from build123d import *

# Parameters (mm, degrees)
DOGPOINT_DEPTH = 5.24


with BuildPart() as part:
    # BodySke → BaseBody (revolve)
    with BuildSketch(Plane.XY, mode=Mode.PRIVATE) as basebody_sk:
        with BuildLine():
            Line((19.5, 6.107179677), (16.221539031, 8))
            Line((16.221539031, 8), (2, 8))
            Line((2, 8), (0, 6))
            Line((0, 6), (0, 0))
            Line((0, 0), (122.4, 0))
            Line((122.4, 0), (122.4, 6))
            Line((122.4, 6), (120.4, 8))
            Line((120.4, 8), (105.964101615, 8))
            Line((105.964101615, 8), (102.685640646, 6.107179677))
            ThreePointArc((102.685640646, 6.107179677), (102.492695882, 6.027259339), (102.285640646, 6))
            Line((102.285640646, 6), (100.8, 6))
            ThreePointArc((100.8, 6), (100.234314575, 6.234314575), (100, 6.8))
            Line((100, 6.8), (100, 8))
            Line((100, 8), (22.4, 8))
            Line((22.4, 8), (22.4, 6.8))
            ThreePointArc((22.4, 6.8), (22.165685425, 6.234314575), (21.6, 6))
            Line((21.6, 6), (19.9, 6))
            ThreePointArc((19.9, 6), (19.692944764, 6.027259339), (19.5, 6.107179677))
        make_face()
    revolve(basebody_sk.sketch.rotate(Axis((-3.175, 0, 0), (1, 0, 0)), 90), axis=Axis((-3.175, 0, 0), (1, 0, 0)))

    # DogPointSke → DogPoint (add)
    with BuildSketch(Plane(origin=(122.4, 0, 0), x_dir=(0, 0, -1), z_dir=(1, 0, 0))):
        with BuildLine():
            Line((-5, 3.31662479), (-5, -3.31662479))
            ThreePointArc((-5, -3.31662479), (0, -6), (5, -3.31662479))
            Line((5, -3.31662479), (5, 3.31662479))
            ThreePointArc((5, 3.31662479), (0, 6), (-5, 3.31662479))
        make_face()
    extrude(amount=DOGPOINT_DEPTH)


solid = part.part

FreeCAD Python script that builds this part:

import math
import FreeCAD as App
import Part
import Sketcher
Q = App.Units.Quantity

doc = App.newDocument("Part")
body = doc.addObject("PartDesign::Body", "Body")

sketch1 = body.newObject("Sketcher::SketchObject", "Sketch")
sketch1.AttachmentSupport = (doc.getObject("XY_Plane"), [""])
sketch1.MapMode = "FlatFace"
sketch1.addGeometry(Part.LineSegment(App.Vector(19.5, 6.11, 0), App.Vector(16.22, 8, 0)), False)
sketch1.addGeometry(Part.LineSegment(App.Vector(16.22, 8, 0), App.Vector(2, 8, 0)), False)
sketch1.addGeometry(Part.LineSegment(App.Vector(2, 8, 0), App.Vector(0, 6, 0)), False)
sketch1.addGeometry(Part.LineSegment(App.Vector(0, 6, 0), App.Vector(0, 0, 0)), False)
sketch1.addGeometry(Part.LineSegment(App.Vector(0, 0, 0), App.Vector(122.4, 0, 0)), False)
sketch1.addGeometry(Part.LineSegment(App.Vector(122.4, 0, 0), App.Vector(122.4, 6, 0)), False)
sketch1.addGeometry(Part.LineSegment(App.Vector(122.4, 6, 0), App.Vector(120.4, 8, 0)), False)
sketch1.addGeometry(Part.LineSegment(App.Vector(120.4, 8, 0), App.Vector(105.96, 8, 0)), False)
sketch1.addGeometry(Part.LineSegment(App.Vector(105.96, 8, 0), App.Vector(102.69, 6.11, 0)), False)
sketch1.addGeometry(Part.ArcOfCircle(Part.Circle(App.Vector(102.29, 6.8, 0), App.Vector(0, 0, 1), 0.8), math.radians(-90), math.radians(-60)), False)
sketch1.addGeometry(Part.LineSegment(App.Vector(102.29, 6, 0), App.Vector(100.8, 6, 0)), False)
sketch1.addGeometry(Part.ArcOfCircle(Part.Circle(App.Vector(100.8, 6.8, 0), App.Vector(0, 0, 1), 0.8), math.radians(180), math.radians(270)), False)
sketch1.addGeometry(Part.LineSegment(App.Vector(100, 6.8, 0), App.Vector(100, 8, 0)), False)
sketch1.addGeometry(Part.LineSegment(App.Vector(100, 8, 0), App.Vector(22.4, 8, 0)), False)
sketch1.addGeometry(Part.LineSegment(App.Vector(22.4, 8, 0), App.Vector(22.4, 6.8, 0)), False)
sketch1.addGeometry(Part.ArcOfCircle(Part.Circle(App.Vector(21.6, 6.8, 0), App.Vector(0, 0, 1), 0.8), math.radians(-90), math.radians(0)), False)
sketch1.addGeometry(Part.LineSegment(App.Vector(21.6, 6, 0), App.Vector(19.9, 6, 0)), False)
sketch1.addGeometry(Part.ArcOfCircle(Part.Circle(App.Vector(19.9, 6.8, 0), App.Vector(0, 0, 1), 0.8), math.radians(-120), math.radians(-90)), False)
sketch1.addConstraint(Sketcher.Constraint("Coincident", 0, 2, 1, 1))
sketch1.addConstraint(Sketcher.Constraint("Coincident", 1, 2, 2, 1))
sketch1.addConstraint(Sketcher.Constraint("Coincident", 2, 2, 3, 1))
sketch1.addConstraint(Sketcher.Constraint("Coincident", 3, 2, 4, 1))
sketch1.addConstraint(Sketcher.Constraint("Coincident", 4, 2, 5, 1))
sketch1.addConstraint(Sketcher.Constraint("Coincident", 5, 2, 6, 1))
sketch1.addConstraint(Sketcher.Constraint("Coincident", 6, 2, 7, 1))
sketch1.addConstraint(Sketcher.Constraint("Coincident", 7, 2, 8, 1))
sketch1.addConstraint(Sketcher.Constraint("Tangent", 8, 2, 9, 2))
sketch1.addConstraint(Sketcher.Constraint("Tangent", 9, 1, 10, 1))
sketch1.addConstraint(Sketcher.Constraint("Tangent", 10, 2, 11, 2))
sketch1.addConstraint(Sketcher.Constraint("Tangent", 11, 1, 12, 1))
sketch1.addConstraint(Sketcher.Constraint("Coincident", 12, 2, 13, 1))
sketch1.addConstraint(Sketcher.Constraint("Coincident", 13, 2, 14, 1))
sketch1.addConstraint(Sketcher.Constraint("Tangent", 14, 2, 15, 2))
sketch1.addConstraint(Sketcher.Constraint("Tangent", 15, 1, 16, 1))
sketch1.addConstraint(Sketcher.Constraint("Tangent", 16, 2, 17, 2))
sketch1.addConstraint(Sketcher.Constraint("Tangent", 17, 1, 0, 1))
sketch1.addConstraint(Sketcher.Constraint("Horizontal", 1))
sketch1.addConstraint(Sketcher.Constraint("Vertical", 3))
sketch1.addConstraint(Sketcher.Constraint("Horizontal", 4))
sketch1.addConstraint(Sketcher.Constraint("Vertical", 5))
sketch1.addConstraint(Sketcher.Constraint("Horizontal", 7))
sketch1.addConstraint(Sketcher.Constraint("Horizontal", 10))
sketch1.addConstraint(Sketcher.Constraint("Vertical", 12))
sketch1.addConstraint(Sketcher.Constraint("Horizontal", 13))
sketch1.addConstraint(Sketcher.Constraint("Vertical", 14))
sketch1.addConstraint(Sketcher.Constraint("Horizontal", 16))
sketch1.addConstraint(Sketcher.Constraint("Coincident", 3, 2, -1, 1))
sketch1.addConstraint(Sketcher.Constraint("Equal", 9, 11))
sketch1.addConstraint(Sketcher.Constraint("Equal", 11, 15))
sketch1.addConstraint(Sketcher.Constraint("Equal", 15, 17))
sketch1.addConstraint(Sketcher.Constraint("Perpendicular", 2, 6))
sketch1.addConstraint(Sketcher.Constraint("Horizontal", 11, 3, 15, 3))
sketch1.addConstraint(Sketcher.Constraint("Horizontal", 2, 2, 5, 2))
sketch1.addConstraint(Sketcher.Constraint("Horizontal", 1, 2, 6, 2))
sketch1.addConstraint(Sketcher.Constraint("Horizontal", 5, 2, 9, 1))
sketch1.addConstraint(Sketcher.Constraint("Horizontal", 7, 2, 12, 2))
sketch1.addConstraint(Sketcher.Constraint("Horizontal", 8, 2, 17, 1))
sketch1.addConstraint(Sketcher.Constraint("Equal", 2, 6))
sketch1.addConstraint(Sketcher.Constraint("Radius", 9, 0.8))
sketch1.addConstraint(Sketcher.Constraint("DistanceY", 3, 2, 3, 1, 6.0))
sketch1.addConstraint(Sketcher.Constraint("Angle", 0, Q("150 deg")))
sketch1.addConstraint(Sketcher.Constraint("DistanceX", 4, 1, 4, 2, 122.4))
sketch1.addConstraint(Sketcher.Constraint("DistanceX", 13, 2, 13, 1, 77.6))
sketch1.addConstraint(Sketcher.Constraint("DistanceX", 16, 2, 16, 1, 1.7))
sketch1.addConstraint(Sketcher.Constraint("DistanceY", 12, 1, 12, 2, 1.2))
sketch1.addConstraint(Sketcher.Constraint("DistanceX", -1, 1, 11, 1, 100.0))
sketch1.addConstraint(Sketcher.Constraint("DistanceX", 7, 2, 7, 1, 14.435898))
revolution = body.newObject("PartDesign::Revolution", "Revolution")
revolution.Profile = sketch1
revolution.ReferenceAxis = (sketch1, ["H_Axis"])
revolution.Angle = 360

sketch2 = body.newObject("Sketcher::SketchObject", "Sketch001")
sketch2.AttachmentSupport = (doc.getObject("YZ_Plane"), [""])
sketch2.MapMode = "FlatFace"
sketch2.AttachmentOffset = App.Placement(App.Vector(0, 0, 122.4), App.Rotation())
sketch2.addGeometry(Part.LineSegment(App.Vector(3, 5, 0), App.Vector(-3, 5, 0)), False)
sketch2.addGeometry(Part.ArcOfCircle(Part.Circle(App.Vector(0, 0, 0), App.Vector(0, 0, 1), 6), math.radians(124), math.radians(236)), False)
sketch2.addGeometry(Part.LineSegment(App.Vector(-3, -5, 0), App.Vector(3, -5, 0)), False)
sketch2.addGeometry(Part.ArcOfCircle(Part.Circle(App.Vector(0, 0, 0), App.Vector(0, 0, 1), 6), math.radians(-56), math.radians(56)), False)
sketch2.addConstraint(Sketcher.Constraint("Coincident", 0, 2, 1, 1))
sketch2.addConstraint(Sketcher.Constraint("Coincident", 1, 2, 2, 1))
sketch2.addConstraint(Sketcher.Constraint("Coincident", 2, 2, 3, 1))
sketch2.addConstraint(Sketcher.Constraint("Coincident", 3, 2, 0, 1))
sketch2.addConstraint(Sketcher.Constraint("Horizontal", 0))
sketch2.addConstraint(Sketcher.Constraint("Horizontal", 2))
sketch2.addConstraint(Sketcher.Constraint("Coincident", 1, 3, -1, 1))
sketch2.addConstraint(Sketcher.Constraint("Coincident", 3, 3, -1, 1))
sketch2.addConstraint(Sketcher.Constraint("Equal", 1, 3))
sketch2.addConstraint(Sketcher.Constraint("Vertical", 0, 2, 1, 2))
sketch2.addConstraint(Sketcher.Constraint("Radius", 1, 6.0))
sketch2.addConstraint(Sketcher.Constraint("DistanceY", -1, 1, 0, 2, 5.0))
pad1 = body.newObject("PartDesign::Pad", "Pad")
pad1.Profile = sketch2
pad1.Length = 5.24

doc.recompute()
